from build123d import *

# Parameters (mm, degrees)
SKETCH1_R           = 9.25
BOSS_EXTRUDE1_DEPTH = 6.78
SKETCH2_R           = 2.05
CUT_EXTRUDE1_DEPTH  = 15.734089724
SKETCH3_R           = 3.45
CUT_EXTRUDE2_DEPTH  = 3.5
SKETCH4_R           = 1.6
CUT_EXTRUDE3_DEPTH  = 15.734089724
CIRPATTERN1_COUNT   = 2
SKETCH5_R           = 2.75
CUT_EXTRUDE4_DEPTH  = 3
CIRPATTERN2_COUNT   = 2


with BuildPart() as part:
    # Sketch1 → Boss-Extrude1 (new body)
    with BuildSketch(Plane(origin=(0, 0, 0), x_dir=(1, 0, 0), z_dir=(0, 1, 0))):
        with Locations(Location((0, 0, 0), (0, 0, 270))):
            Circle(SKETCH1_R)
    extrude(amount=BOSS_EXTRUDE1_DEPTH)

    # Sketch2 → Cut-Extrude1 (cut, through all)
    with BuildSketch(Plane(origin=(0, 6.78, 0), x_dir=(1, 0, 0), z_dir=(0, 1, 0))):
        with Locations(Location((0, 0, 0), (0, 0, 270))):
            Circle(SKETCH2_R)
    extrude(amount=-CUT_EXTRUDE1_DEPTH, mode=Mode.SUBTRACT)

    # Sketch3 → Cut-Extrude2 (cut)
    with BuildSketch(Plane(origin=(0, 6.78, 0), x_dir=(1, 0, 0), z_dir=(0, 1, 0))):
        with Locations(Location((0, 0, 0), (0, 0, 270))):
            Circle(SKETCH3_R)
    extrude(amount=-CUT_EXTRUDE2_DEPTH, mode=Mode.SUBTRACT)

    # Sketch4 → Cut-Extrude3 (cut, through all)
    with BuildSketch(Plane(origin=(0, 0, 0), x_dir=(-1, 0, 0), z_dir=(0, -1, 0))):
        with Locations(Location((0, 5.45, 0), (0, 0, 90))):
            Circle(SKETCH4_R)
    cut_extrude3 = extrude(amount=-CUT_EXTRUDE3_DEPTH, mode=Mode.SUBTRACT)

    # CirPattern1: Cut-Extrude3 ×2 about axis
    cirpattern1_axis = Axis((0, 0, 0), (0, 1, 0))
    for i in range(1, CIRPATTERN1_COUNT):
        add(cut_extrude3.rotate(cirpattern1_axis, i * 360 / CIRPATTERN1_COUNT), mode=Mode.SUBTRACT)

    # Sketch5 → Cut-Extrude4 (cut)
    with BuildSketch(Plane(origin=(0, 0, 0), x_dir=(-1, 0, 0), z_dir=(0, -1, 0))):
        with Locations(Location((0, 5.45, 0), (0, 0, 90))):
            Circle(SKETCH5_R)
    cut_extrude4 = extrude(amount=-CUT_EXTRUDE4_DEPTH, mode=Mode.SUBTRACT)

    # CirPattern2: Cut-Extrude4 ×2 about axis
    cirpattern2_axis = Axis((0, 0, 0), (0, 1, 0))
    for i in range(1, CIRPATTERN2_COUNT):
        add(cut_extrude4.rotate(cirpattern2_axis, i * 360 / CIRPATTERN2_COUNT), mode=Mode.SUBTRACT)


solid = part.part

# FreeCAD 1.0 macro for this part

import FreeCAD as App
import Part
import Sketcher
from FreeCAD import Vector

doc = App.newDocument("Part")
params = doc.addObject("Spreadsheet::Sheet", "Params")
for row, (alias, value) in enumerate([
    ("sketch1_diameter", "18.5 mm"),
    ("pad1_length", "6.78 mm"),
    ("sketch2_diameter", "4.1 mm"),
    ("sketch3_diameter", "6.9 mm"),
    ("pocket2_length", "3.5 mm"),
    ("sketch4_diameter", "3.2 mm"),
    ("sketch5_diameter", "5.5 mm"),
    ("pocket4_length", "3 mm"),
], start=1):
    params.set(f"A{row}", alias)
    params.set(f"B{row}", "=" + value)
    params.setAlias(f"B{row}", alias)

body = doc.addObject("PartDesign::Body", "Body")

# Sketch on XZ plane
sketch1 = body.newObject("Sketcher::SketchObject", "Sketch")
sketch1.AttachmentSupport = (doc.getObject("XZ_Plane"), [""])
sketch1.MapMode = "FlatFace"
sketch1.addGeometry(Part.Circle(Vector(0, 0, 0), Vector(0, 0, 1), 9), False)
sketch1.addConstraint([
    Sketcher.Constraint("Coincident", 0, 3, -1, 1),
    Sketcher.Constraint("Diameter", 0, 18.5),
])
sketch1.setExpression("Constraints[1]", "Params.sketch1_diameter")
pad1 = body.newObject("PartDesign::Pad", "Pad")
pad1.Profile = sketch1
pad1.setExpression("Length", "Params.pad1_length")
pad1.Reversed = True

# Sketch on XZ plane
sketch2 = body.newObject("Sketcher::SketchObject", "Sketch001")
sketch2.AttachmentSupport = (doc.getObject("XZ_Plane"), [""])
sketch2.MapMode = "FlatFace"
sketch2.AttachmentOffset = App.Placement(Vector(0, 0, -6.78), App.Rotation())
sketch2.addGeometry(Part.Circle(Vector(0, 0, 0), Vector(0, 0, 1), 2), False)
sketch2.addConstraint([
    Sketcher.Constraint("Coincident", 0, 3, -1, 1),
    Sketcher.Constraint("Diameter", 0, 4.1),
])
sketch2.setExpression("Constraints[1]", "Params.sketch2_diameter")
pocket1 = body.newObject("PartDesign::Pocket", "Pocket")
pocket1.Profile = sketch2
pocket1.Type = "ThroughAll"
pocket1.Reversed = True

# Sketch on XZ plane
sketch3 = body.newObject("Sketcher::SketchObject", "Sketch002")
sketch3.AttachmentSupport = (doc.getObject("XZ_Plane"), [""])
sketch3.MapMode = "FlatFace"
sketch3.AttachmentOffset = App.Placement(Vector(0, 0, -6.78), App.Rotation())
sketch3.addGeometry(Part.Circle(Vector(0, 0, 0), Vector(0, 0, 1), 3.5), False)
sketch3.addConstraint([
    Sketcher.Constraint("Coincident", 0, 3, -1, 1),
    Sketcher.Constraint("Diameter", 0, 6.9),
])
sketch3.setExpression("Constraints[1]", "Params.sketch3_diameter")
pocket2 = body.newObject("PartDesign::Pocket", "Pocket001")
pocket2.Profile = sketch3
pocket2.setExpression("Length", "Params.pocket2_length")
pocket2.Reversed = True

# Sketch on XZ plane
sketch4 = body.newObject("Sketcher::SketchObject", "Sketch003")
sketch4.AttachmentSupport = (doc.getObject("XZ_Plane"), [""])
sketch4.MapMode = "FlatFace"
sketch4.addGeometry(Part.Circle(Vector(0, -5.5, 0), Vector(0, 0, 1), 1.6), False)
sketch4.addConstraint([
    Sketcher.Constraint("PointOnObject", 0, 3, -2),
    Sketcher.Constraint("Diameter", 0, 3.2),
    Sketcher.Constraint("DistanceY", 0, 3, -1, 1, 5.45),
])
sketch4.setExpression("Constraints[1]", "Params.sketch4_diameter")
pocket3 = body.newObject("PartDesign::Pocket", "Pocket002")
pocket3.Profile = sketch4
pocket3.Type = "ThroughAll"
doc.recompute()

polarpattern = body.newObject("PartDesign::PolarPattern", "PolarPattern")
polarpattern.Originals = [pocket3]
polarpattern.Axis = (doc.getObject("Y_Axis"), [""])
polarpattern.Angle = 360
polarpattern.Occurrences = 2
body.Tip = polarpattern

# Sketch on XZ plane
sketch5 = body.newObject("Sketcher::SketchObject", "Sketch004")
sketch5.AttachmentSupport = (doc.getObject("XZ_Plane"), [""])
sketch5.MapMode = "FlatFace"
sketch5.addGeometry(Part.Circle(Vector(0, -5.5, 0), Vector(0, 0, 1), 2.8), False)
sketch5.addConstraint([
    Sketcher.Constraint("PointOnObject", 0, 3, -2),
    Sketcher.Constraint("Diameter", 0, 5.5),
    Sketcher.Constraint("DistanceY", 0, 3, -1, 1, 5.45),
])
sketch5.setExpression("Constraints[1]", "Params.sketch5_diameter")
pocket4 = body.newObject("PartDesign::Pocket", "Pocket003")
pocket4.Profile = sketch5
pocket4.setExpression("Length", "Params.pocket4_length")
doc.recompute()

polarpattern2 = body.newObject("PartDesign::PolarPattern", "PolarPattern001")
polarpattern2.Originals = [pocket4]
polarpattern2.Axis = (doc.getObject("Y_Axis"), [""])
polarpattern2.Angle = 360
polarpattern2.Occurrences = 2
body.Tip = polarpattern2

doc.recompute()
